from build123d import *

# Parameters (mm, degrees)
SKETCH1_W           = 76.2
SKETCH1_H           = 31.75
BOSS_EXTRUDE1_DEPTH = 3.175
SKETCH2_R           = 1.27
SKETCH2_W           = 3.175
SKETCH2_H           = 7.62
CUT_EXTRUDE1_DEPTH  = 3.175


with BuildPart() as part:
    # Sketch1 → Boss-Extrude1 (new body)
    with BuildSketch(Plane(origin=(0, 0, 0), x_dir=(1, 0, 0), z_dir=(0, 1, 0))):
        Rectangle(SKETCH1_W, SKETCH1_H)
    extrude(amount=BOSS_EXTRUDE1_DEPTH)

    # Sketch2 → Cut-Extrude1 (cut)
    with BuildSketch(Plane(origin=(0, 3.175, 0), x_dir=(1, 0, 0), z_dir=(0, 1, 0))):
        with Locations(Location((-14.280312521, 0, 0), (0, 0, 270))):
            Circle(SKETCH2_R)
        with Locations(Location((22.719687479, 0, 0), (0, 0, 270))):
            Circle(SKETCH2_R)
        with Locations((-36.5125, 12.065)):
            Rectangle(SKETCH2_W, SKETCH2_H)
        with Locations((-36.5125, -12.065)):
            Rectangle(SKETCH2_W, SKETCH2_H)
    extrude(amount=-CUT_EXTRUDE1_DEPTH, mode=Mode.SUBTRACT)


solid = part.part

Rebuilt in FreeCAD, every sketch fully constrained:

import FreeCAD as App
import Part
import Sketcher
Q = App.Units.Quantity


def add_polygon(sketch, points):
    """Adds a closed chain of lines whose ends are joined by coincident constraints."""
    first, n = sketch.GeometryCount, len(points)
    for a, b in zip(points, points[1:] + points[:1]):
        sketch.addGeometry(Part.LineSegment(App.Vector(*a, 0), App.Vector(*b, 0)), False)
    for i in range(n):
        sketch.addConstraint(Sketcher.Constraint("Coincident", first + i, 2, first + (i + 1) % n, 1))

doc = App.newDocument("Part")
body = doc.addObject("PartDesign::Body", "Body")

# Sketch on XZ plane
sketch1 = body.newObject("Sketcher::SketchObject", "Sketch")
sketch1.AttachmentSupport = (doc.getObject("XZ_Plane"), [""])
sketch1.MapMode = "FlatFace"
add_polygon(sketch1, [(-38, -16), (-38, 16), (38, 16), (38, -16)])  # lines 0-3
sketch1.addConstraint(Sketcher.Constraint("Vertical", 0))
sketch1.addConstraint(Sketcher.Constraint("Horizontal", 1))
sketch1.addConstraint(Sketcher.Constraint("Vertical", 2))
sketch1.addConstraint(Sketcher.Constraint("Horizontal", 3))
sketch1.addConstraint(Sketcher.Constraint("Symmetric", 0, 2, 2, 2, -1, 1))
sketch1.addConstraint(Sketcher.Constraint("DistanceX", 1, 1, 1, 2, Q("3 in")))
sketch1.addConstraint(Sketcher.Constraint("DistanceY", 0, 1, 0, 2, Q("1.25 in")))
pad1 = body.newObject("PartDesign::Pad", "Pad")
pad1.Profile = sketch1
pad1.Length = Q("0.125 in")
pad1.Reversed = True

# Sketch on XZ plane
sketch2 = body.newObject("Sketcher::SketchObject", "Sketch001")
sketch2.AttachmentSupport = (doc.getObject("XZ_Plane"), [""])
sketch2.MapMode = "FlatFace"
sketch2.AttachmentOffset = App.Placement(App.Vector(0, 0, -0.125 * 25.4), App.Rotation())
sketch2.addGeometry(Part.Circle(App.Vector(-14.3, 0, 0), App.Vector(0, 0, 1), 1.3), False)  # 0
sketch2.addGeometry(Part.Circle(App.Vector(22.7, 0, 0), App.Vector(0, 0, 1), 1.3), False)  # 1
add_polygon(sketch2, [(-38.1, -15.9), (-38.1, -8.3), (-34.9, -8.3), (-34.9, -15.9)])  # lines 2-5
add_polygon(sketch2, [(-38.1, 8.3), (-38.1, 15.9), (-34.9, 15.9), (-34.9, 8.3)])  # lines 6-9
sketch2.addConstraint(Sketcher.Constraint("Vertical", 2))
sketch2.addConstraint(Sketcher.Constraint("Horizontal", 3))
sketch2.addConstraint(Sketcher.Constraint("Vertical", 4))
sketch2.addConstraint(Sketcher.Constraint("Horizontal", 5))
sketch2.addConstraint(Sketcher.Constraint("Vertical", 6))
sketch2.addConstraint(Sketcher.Constraint("Horizontal", 7))
sketch2.addConstraint(Sketcher.Constraint("Vertical", 8))
sketch2.addConstraint(Sketcher.Constraint("Horizontal", 9))
sketch2.addConstraint(Sketcher.Constraint("Equal", 0, 1))
sketch2.addConstraint(Sketcher.Constraint("Symmetric", 5, 2, 6, 2, -1))
sketch2.addConstraint(Sketcher.Constraint("Symmetric", 3, 2, 8, 2, -1))
sketch2.addConstraint(Sketcher.Constraint("PointOnObject", 0, 3, -1))
sketch2.addConstraint(Sketcher.Constraint("PointOnObject", 1, 3, -1))
sketch2.addConstraint(Sketcher.Constraint("Diameter", 0, Q("0.1 in")))
sketch2.addConstraint(Sketcher.Constraint("DistanceY", 2, 1, 2, 2, Q("0.3 in")))
sketch2.addConstraint(Sketcher.Constraint("DistanceX", 2, 2, -1, 1, Q("1.5 in")))
sketch2.addConstraint(Sketcher.Constraint("DistanceX", 3, 1, 3, 2, Q("0.125 in")))
sketch2.addConstraint(Sketcher.Constraint("DistanceY", 2, 2, 6, 2, Q("0.95 in")))
sketch2.addConstraint(Sketcher.Constraint("DistanceX", 0, 3, 1, 3, 37.0))
sketch2.addConstraint(Sketcher.Constraint("DistanceX", 0, 3, -1, 1, 14.280313))
pocket1 = body.newObject("PartDesign::Pocket", "Pocket")
pocket1.Profile = sketch2
pocket1.Length = Q("0.125 in")
pocket1.Reversed = True

doc.recompute()
